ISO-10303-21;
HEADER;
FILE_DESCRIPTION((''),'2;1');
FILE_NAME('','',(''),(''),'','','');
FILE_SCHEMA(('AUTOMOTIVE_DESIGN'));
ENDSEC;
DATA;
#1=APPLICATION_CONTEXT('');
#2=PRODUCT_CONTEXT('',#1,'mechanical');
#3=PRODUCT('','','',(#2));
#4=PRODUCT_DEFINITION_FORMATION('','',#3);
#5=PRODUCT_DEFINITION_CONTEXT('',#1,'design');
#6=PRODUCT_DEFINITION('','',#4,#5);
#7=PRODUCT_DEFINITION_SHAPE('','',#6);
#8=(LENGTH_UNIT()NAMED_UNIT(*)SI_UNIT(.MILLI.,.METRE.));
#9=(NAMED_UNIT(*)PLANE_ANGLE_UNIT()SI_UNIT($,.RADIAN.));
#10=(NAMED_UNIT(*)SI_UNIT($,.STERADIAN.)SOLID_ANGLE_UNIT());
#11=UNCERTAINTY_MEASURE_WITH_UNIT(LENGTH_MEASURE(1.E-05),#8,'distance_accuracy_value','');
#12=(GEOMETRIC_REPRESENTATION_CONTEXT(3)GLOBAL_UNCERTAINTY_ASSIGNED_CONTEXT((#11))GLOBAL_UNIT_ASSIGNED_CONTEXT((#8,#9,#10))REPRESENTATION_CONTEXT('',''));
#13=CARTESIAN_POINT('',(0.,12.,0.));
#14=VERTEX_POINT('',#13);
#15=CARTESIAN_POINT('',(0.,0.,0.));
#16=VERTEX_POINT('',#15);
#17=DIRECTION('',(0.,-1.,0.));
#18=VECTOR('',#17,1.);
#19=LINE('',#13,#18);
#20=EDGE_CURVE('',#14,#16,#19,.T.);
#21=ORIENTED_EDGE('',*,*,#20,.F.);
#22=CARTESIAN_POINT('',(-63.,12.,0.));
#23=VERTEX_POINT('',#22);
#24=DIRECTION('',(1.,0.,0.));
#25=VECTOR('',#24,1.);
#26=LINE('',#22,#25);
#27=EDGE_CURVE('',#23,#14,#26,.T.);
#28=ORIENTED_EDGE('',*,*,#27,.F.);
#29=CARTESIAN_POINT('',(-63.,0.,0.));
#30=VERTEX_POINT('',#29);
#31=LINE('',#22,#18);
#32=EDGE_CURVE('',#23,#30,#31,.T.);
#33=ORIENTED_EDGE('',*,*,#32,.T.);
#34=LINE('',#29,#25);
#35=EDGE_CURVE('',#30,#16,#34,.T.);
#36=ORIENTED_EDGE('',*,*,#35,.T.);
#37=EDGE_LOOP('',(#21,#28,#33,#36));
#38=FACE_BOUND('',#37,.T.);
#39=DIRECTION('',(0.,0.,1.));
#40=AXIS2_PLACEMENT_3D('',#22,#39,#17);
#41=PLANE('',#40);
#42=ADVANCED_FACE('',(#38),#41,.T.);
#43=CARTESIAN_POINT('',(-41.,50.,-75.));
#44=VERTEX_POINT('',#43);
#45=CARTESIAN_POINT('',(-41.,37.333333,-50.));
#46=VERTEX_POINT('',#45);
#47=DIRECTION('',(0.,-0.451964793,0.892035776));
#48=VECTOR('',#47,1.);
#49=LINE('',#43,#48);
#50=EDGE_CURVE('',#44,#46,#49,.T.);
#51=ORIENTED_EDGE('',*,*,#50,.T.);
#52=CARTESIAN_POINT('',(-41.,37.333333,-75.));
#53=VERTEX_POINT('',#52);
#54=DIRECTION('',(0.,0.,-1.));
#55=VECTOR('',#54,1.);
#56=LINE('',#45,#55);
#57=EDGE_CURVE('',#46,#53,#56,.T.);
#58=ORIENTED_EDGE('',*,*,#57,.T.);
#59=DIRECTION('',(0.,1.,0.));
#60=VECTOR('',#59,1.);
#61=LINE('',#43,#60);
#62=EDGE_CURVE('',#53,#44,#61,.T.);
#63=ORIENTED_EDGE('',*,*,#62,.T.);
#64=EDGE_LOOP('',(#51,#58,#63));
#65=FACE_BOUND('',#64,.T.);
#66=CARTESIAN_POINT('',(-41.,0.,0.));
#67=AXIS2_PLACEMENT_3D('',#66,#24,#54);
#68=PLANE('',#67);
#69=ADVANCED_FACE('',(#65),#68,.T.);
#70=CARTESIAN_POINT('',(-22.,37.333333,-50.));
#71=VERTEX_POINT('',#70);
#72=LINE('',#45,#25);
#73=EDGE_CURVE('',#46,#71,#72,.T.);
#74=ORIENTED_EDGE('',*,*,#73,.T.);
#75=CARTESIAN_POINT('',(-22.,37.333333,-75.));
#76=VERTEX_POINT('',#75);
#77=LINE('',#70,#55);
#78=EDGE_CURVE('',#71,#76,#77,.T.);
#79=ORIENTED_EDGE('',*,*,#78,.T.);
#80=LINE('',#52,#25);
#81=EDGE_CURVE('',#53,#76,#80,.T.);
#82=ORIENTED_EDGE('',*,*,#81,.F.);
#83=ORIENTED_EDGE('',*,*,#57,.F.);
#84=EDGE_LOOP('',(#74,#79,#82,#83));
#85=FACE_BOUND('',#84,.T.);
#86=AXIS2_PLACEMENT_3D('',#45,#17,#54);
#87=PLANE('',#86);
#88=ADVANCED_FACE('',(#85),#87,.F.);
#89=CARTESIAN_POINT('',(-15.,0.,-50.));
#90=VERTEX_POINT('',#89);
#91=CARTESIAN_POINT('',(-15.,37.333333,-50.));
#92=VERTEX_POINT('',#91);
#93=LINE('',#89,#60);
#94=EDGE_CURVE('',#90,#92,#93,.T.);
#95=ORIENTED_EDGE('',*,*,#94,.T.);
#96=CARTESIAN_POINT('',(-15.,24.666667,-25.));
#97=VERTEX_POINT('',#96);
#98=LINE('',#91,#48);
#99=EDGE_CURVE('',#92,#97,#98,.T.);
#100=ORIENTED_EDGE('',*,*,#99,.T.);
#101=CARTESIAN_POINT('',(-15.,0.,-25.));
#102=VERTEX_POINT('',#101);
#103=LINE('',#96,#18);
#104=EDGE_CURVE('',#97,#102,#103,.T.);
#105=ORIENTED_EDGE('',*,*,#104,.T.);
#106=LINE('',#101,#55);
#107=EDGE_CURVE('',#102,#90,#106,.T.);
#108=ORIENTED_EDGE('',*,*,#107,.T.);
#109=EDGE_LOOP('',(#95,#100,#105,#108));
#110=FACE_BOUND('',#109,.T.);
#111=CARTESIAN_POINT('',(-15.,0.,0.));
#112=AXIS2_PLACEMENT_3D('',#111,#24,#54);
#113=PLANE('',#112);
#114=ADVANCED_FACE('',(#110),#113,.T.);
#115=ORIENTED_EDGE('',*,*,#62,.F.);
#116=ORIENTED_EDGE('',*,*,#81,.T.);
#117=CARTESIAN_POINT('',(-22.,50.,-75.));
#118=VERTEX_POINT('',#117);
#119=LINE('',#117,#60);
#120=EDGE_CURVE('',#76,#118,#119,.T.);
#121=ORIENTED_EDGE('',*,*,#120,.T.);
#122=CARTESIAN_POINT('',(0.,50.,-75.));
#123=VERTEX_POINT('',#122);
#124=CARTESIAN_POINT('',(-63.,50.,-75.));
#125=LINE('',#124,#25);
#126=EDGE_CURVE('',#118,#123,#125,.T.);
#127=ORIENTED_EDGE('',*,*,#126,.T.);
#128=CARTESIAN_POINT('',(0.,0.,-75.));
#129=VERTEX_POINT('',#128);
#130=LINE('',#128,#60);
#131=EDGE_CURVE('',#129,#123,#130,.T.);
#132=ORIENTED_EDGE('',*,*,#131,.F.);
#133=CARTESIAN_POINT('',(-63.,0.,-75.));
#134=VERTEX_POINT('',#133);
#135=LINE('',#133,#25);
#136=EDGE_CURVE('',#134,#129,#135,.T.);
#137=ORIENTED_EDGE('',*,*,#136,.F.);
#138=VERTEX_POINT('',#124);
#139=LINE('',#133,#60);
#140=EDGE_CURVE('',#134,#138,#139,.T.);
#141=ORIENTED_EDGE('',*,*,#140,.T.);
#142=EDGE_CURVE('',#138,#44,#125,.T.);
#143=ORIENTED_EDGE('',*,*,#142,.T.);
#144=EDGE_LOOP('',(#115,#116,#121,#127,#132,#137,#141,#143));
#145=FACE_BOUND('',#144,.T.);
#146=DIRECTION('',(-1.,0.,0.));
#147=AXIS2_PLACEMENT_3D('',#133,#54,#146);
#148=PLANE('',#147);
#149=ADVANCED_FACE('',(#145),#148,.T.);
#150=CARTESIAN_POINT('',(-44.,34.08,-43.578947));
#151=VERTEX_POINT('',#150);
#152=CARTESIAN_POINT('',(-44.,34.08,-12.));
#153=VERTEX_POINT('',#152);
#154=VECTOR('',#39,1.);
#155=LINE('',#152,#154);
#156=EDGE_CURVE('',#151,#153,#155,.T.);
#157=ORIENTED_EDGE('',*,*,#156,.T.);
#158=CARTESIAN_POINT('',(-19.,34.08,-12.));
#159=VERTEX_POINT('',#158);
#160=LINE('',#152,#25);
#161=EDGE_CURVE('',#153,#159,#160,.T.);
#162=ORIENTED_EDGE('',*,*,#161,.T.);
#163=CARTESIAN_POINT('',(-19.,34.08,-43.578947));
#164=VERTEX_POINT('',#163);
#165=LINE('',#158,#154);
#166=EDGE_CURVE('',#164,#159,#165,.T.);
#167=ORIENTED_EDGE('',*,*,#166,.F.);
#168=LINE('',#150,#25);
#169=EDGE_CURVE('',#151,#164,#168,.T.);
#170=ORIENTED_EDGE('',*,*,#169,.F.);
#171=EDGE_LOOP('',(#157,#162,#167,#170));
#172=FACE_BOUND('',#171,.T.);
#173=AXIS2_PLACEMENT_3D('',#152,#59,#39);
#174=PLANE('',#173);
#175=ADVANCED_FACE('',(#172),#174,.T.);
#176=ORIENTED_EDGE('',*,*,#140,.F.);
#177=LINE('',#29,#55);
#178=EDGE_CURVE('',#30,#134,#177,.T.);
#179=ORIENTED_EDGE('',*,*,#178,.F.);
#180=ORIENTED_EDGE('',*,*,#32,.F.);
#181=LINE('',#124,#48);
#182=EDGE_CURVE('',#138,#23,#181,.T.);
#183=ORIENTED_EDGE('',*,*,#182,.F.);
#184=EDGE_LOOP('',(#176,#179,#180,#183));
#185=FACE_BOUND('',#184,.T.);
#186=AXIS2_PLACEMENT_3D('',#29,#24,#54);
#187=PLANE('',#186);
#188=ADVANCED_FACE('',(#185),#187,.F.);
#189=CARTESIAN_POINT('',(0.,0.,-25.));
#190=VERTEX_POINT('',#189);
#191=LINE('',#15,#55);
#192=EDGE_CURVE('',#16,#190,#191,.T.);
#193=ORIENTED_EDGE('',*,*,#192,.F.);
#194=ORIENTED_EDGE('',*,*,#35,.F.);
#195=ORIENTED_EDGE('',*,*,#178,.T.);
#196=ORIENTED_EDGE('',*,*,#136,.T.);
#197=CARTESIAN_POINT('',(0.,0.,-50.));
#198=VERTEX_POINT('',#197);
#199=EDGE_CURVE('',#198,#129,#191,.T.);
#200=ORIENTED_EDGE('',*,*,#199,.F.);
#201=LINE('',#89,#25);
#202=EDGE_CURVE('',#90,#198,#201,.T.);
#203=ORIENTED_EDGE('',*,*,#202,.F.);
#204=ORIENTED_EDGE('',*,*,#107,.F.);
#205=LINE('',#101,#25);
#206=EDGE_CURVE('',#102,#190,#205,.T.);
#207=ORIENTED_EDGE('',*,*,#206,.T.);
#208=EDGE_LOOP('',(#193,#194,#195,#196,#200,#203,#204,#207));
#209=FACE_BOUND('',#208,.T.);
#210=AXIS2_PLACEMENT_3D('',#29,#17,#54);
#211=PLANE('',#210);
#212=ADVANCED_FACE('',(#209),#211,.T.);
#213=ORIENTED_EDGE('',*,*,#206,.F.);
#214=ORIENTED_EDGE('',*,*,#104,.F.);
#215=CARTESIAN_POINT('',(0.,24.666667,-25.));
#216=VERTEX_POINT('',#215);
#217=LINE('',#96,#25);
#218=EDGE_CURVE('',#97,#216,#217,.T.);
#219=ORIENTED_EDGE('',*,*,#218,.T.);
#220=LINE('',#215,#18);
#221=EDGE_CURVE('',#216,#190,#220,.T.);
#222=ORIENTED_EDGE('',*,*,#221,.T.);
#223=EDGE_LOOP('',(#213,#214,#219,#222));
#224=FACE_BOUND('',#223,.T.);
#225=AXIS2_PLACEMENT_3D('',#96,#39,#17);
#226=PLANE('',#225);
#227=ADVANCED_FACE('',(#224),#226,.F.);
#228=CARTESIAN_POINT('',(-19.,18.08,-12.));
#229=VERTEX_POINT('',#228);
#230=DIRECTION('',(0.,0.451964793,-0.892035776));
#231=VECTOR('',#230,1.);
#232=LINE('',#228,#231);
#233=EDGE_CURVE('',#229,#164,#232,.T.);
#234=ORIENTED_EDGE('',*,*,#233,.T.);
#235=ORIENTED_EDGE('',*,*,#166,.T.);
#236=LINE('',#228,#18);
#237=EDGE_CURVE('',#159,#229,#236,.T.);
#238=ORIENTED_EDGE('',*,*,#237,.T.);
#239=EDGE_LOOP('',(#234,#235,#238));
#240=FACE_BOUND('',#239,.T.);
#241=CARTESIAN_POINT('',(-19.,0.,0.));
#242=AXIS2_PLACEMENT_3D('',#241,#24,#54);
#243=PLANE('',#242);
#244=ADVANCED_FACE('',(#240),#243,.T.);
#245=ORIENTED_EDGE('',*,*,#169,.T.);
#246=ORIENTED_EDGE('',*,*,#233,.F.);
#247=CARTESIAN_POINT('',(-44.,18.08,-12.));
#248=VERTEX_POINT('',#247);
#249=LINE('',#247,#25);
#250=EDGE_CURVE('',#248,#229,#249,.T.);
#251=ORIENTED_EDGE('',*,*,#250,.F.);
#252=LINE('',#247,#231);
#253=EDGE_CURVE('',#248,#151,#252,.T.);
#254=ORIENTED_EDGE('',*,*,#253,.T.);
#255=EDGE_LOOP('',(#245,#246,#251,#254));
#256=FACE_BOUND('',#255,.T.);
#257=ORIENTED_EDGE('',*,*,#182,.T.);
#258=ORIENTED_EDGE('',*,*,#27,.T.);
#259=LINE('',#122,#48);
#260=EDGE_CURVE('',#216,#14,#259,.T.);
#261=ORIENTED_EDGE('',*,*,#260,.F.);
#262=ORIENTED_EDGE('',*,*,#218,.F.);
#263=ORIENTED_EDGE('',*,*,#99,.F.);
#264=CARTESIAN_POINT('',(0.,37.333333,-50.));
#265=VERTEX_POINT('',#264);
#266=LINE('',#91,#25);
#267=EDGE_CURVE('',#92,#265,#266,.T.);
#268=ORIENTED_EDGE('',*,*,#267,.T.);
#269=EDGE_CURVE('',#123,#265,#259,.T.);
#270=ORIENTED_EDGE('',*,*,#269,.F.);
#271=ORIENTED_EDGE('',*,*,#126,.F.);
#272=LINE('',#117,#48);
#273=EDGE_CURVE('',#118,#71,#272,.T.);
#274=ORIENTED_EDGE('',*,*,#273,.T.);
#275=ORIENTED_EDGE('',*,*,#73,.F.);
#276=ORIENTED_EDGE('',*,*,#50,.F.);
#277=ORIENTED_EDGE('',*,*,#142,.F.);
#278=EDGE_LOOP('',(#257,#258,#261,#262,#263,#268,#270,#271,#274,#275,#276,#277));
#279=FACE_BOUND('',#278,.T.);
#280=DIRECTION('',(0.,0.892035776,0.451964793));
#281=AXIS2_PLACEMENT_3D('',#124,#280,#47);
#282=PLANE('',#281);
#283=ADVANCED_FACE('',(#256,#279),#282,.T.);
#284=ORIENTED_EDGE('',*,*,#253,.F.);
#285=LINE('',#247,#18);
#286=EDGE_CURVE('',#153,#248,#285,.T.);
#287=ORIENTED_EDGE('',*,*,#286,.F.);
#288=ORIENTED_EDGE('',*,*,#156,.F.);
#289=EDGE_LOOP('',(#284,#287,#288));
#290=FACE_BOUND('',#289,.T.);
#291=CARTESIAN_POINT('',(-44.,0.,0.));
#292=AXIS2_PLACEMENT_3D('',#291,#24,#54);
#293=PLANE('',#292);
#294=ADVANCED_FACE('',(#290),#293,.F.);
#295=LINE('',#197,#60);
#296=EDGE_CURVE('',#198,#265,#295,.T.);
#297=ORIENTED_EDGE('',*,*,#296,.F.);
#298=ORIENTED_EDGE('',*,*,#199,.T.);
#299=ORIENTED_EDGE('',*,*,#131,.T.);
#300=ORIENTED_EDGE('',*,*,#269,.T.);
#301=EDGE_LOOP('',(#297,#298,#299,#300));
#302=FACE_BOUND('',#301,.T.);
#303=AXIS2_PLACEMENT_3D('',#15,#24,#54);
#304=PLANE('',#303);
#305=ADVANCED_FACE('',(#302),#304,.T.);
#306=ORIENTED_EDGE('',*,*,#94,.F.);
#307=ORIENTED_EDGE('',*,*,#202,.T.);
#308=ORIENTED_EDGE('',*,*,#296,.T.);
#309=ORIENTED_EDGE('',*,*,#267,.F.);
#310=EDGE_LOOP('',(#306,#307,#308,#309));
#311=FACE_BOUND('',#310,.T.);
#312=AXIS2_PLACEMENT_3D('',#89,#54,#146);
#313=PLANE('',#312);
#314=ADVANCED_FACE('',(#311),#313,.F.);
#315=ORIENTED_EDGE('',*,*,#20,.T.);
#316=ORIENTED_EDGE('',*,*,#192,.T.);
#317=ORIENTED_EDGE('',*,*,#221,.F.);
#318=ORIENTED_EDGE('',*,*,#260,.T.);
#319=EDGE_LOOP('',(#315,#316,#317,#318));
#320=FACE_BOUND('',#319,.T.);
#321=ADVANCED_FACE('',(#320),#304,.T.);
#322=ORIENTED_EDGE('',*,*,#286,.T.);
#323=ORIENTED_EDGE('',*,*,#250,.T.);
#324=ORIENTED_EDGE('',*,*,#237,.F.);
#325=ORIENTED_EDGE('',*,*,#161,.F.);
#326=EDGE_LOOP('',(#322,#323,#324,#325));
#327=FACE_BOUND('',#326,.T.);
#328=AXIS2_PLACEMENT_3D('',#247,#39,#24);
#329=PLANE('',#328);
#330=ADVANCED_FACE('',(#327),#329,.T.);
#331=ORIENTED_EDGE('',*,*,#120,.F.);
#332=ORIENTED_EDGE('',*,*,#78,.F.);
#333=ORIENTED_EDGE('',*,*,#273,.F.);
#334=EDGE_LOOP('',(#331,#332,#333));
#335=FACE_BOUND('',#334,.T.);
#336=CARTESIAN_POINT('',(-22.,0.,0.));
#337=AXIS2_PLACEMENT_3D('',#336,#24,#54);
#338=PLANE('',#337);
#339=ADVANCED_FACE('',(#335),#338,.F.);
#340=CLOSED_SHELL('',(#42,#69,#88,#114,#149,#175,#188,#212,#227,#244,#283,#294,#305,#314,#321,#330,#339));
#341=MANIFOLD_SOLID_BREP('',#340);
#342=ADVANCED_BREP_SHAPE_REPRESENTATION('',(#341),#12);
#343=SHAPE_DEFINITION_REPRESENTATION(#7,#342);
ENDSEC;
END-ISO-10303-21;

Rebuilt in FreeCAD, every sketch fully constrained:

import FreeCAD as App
import Part
import Sketcher


def add_polygon(sketch, points):
    """Adds a closed chain of lines whose ends are joined by coincident constraints."""
    first, n = sketch.GeometryCount, len(points)
    for a, b in zip(points, points[1:] + points[:1]):
        sketch.addGeometry(Part.LineSegment(App.Vector(*a, 0), App.Vector(*b, 0)), False)
    for i in range(n):
        sketch.addConstraint(Sketcher.Constraint("Coincident", first + i, 2, first + (i + 1) % n, 1))

doc = App.newDocument("Part")
body = doc.addObject("PartDesign::Body", "Body")

sketch1 = doc.addObject("Sketcher::SketchObject", "Sketch")
body.addObject(sketch1)
sketch1.AttachmentSupport = (doc.YZ_Plane, [""])
sketch1.MapMode = "FlatFace"
add_polygon(sketch1, [(0, -75), (50, -75), (12, 0), (0, 0)])
sketch1.addConstraint([
    Sketcher.Constraint("Horizontal", 0),
    Sketcher.Constraint("Horizontal", 2),
    Sketcher.Constraint("Vertical", 3),
    Sketcher.Constraint("Coincident", 2, 2, -1, 1),
    Sketcher.Constraint("DistanceX", 0, 1, 0, 2, 50.0),
    Sketcher.Constraint("DistanceX", 2, 2, 2, 1, 12.0),
    Sketcher.Constraint("DistanceY", 3, 2, 3, 1, 75.0),
])
pad1 = doc.addObject("PartDesign::Pad", "Pad")
body.addObject(pad1)
pad1.Profile = sketch1
pad1.Length = 63
pad1.Reversed = True

sketch2 = doc.addObject("Sketcher::SketchObject", "Sketch001")
body.addObject(sketch2)
sketch2.AttachmentSupport = (doc.YZ_Plane, [""])
sketch2.MapMode = "FlatFace"
add_polygon(sketch2, [(0, -50), (37, -50), (25, -25), (0, -25)])
sketch2.addConstraint([
    Sketcher.Constraint("Horizontal", 0),
    Sketcher.Constraint("Horizontal", 2),
    Sketcher.Constraint("Vertical", 3),
    Sketcher.Constraint("PointOnObject", 2, 2, -2),
    Sketcher.Constraint("DistanceY", 3, 2, 3, 1, 25.0),
    Sketcher.Constraint("DistanceY", 0, 2, -1, 1, 50.0),
    Sketcher.Constraint("Distance", 1, 28.025782),
    Sketcher.Constraint("DistanceX", 0, 1, 0, 2, 37.333333),
])
pocket1 = doc.addObject("PartDesign::Pocket", "Pocket")
body.addObject(pocket1)
pocket1.Profile = sketch2
pocket1.Length = 15

sketch3 = doc.addObject("Sketcher::SketchObject", "Sketch002")
body.addObject(sketch3)
sketch3.AttachmentSupport = (doc.YZ_Plane, [""])
sketch3.MapMode = "FlatFace"
sketch3.AttachmentOffset = App.Placement(App.Vector(0, 0, -19), App.Rotation())
add_polygon(sketch3, [(34, -12), (18, -12), (34, -44)])
sketch3.addConstraint([
    Sketcher.Constraint("Horizontal", 0),
    Sketcher.Constraint("Vertical", 2),
    Sketcher.Constraint("DistanceX", 0, 2, 0, 1, 16.0),
    Sketcher.Constraint("DistanceY", 0, 2, -1, 1, 12.0),
    Sketcher.Constraint("DistanceX", -1, 1, 0, 2, 18.08),
    Sketcher.Constraint("DistanceY", 2, 1, 2, 2, 31.578947),
])
pad2 = doc.addObject("PartDesign::Pad", "Pad001")
body.addObject(pad2)
pad2.Profile = sketch3
pad2.Length = 25
pad2.Reversed = True

sketch4 = doc.addObject("Sketcher::SketchObject", "Sketch003")
body.addObject(sketch4)
sketch4.AttachmentSupport = (doc.YZ_Plane, [""])
sketch4.MapMode = "FlatFace"
sketch4.AttachmentOffset = App.Placement(App.Vector(0, 0, -22), App.Rotation())
add_polygon(sketch4, [(50, -75), (37, -50), (37, -75)])
sketch4.addConstraint([
    Sketcher.Constraint("Vertical", 1),
    Sketcher.Constraint("Horizontal", 2),
    Sketcher.Constraint("DistanceY", 1, 2, 1, 1, 25.0),
    Sketcher.Constraint("DistanceY", 0, 2, -1, 1, 50.0),
    Sketcher.Constraint("DistanceX", -1, 1, 2, 2, 50.0),
    Sketcher.Constraint("Distance", 0, 28.025782),
])
pocket2 = doc.addObject("PartDesign::Pocket", "Pocket001")
body.addObject(pocket2)
pocket2.Profile = sketch4
pocket2.Length = 19

doc.recompute()
